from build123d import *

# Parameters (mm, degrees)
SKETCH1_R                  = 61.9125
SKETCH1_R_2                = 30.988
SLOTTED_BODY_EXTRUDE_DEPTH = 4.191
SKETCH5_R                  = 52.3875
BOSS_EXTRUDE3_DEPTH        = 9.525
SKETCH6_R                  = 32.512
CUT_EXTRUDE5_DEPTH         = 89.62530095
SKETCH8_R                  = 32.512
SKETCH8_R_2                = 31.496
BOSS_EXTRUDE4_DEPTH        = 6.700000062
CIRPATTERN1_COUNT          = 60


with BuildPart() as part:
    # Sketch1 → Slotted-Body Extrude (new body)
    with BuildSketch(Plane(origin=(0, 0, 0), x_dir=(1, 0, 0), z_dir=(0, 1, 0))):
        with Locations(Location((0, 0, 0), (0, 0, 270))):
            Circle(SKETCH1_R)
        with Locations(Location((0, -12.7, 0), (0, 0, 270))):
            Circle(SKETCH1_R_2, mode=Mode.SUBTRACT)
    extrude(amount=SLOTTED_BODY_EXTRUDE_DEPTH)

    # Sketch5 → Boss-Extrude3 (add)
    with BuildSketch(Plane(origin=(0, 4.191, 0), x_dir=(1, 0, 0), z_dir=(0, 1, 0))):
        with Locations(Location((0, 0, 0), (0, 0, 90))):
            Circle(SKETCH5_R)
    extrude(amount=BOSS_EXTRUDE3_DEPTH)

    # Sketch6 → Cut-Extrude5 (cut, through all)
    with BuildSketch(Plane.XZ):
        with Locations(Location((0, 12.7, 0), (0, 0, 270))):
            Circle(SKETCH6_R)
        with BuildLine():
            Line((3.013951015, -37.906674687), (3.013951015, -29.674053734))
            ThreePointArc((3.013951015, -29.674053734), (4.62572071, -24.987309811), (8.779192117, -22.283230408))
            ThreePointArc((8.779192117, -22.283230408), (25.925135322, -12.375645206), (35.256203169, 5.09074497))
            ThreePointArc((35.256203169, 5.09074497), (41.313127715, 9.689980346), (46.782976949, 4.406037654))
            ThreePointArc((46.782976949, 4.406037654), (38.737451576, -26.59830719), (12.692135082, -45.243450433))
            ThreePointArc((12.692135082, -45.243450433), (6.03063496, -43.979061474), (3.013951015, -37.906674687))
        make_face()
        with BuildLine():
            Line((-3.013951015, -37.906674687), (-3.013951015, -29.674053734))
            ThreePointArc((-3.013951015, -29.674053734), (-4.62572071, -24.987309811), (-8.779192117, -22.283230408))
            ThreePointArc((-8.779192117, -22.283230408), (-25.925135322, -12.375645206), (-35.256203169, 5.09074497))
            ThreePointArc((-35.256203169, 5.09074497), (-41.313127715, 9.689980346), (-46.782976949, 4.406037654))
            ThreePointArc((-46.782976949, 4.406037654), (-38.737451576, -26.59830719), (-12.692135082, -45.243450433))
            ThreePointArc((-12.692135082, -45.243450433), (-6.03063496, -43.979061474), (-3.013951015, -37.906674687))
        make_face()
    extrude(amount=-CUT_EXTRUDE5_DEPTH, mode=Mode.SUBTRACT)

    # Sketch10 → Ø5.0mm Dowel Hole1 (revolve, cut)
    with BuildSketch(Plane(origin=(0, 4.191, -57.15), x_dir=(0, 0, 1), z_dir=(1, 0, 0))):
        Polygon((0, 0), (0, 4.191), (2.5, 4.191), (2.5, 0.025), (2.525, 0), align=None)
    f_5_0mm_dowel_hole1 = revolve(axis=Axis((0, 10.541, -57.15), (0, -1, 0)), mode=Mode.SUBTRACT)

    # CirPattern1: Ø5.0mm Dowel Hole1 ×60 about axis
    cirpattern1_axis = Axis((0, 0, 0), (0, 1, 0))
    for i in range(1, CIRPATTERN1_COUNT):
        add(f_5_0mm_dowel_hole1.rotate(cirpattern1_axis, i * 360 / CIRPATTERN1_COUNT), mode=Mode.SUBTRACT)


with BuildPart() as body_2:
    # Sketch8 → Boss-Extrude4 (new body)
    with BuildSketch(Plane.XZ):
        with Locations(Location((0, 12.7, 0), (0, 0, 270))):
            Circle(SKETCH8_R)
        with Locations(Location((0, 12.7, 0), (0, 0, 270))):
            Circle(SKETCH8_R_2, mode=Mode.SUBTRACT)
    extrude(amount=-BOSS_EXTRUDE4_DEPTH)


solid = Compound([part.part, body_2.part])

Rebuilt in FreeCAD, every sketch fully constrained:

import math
import FreeCAD as App
import Part
import Sketcher
from FreeCAD import Vector
Q = App.Units.Quantity

doc = App.newDocument("Part")
body = doc.addObject("PartDesign::Body", "Body")

# Sketch on XZ plane
sketch1 = body.newObject("Sketcher::SketchObject", "Sketch")
sketch1.AttachmentSupport = (doc.getObject("XZ_Plane"), [""])
sketch1.MapMode = "FlatFace"
sketch1.addGeometry([
    Part.Circle(Vector(0, 0, 0), Vector(0, 0, 1), 62),
    Part.Circle(Vector(0, 13, 0), Vector(0, 0, 1), 31),
], False)
sketch1.addConstraint([
    Sketcher.Constraint("Coincident", 0, 3, -1, 1),
    Sketcher.Constraint("PointOnObject", 1, 3, -2),
    Sketcher.Constraint("Diameter", 1, Q("2.44 in")),
    Sketcher.Constraint("Diameter", 0, Q("4.875 in")),
    Sketcher.Constraint("DistanceY", -1, 1, 1, 3, Q("0.5 in")),
])
pad1 = body.newObject("PartDesign::Pad", "Pad")
pad1.Profile = sketch1
pad1.Length = Q("0.165 in")
pad1.Reversed = True

# Sketch on XZ plane
sketch2 = body.newObject("Sketcher::SketchObject", "Sketch001")
sketch2.AttachmentSupport = (doc.getObject("XZ_Plane"), [""])
sketch2.MapMode = "FlatFace"
sketch2.AttachmentOffset = App.Placement(Vector(0, 0, -0.165 * 25.4), App.Rotation())
sketch2.addGeometry(Part.Circle(Vector(0, 0, 0), Vector(0, 0, 1), 52), False)
sketch2.addConstraint([
    Sketcher.Constraint("Coincident", 0, 3, -1, 1),
    Sketcher.Constraint("Diameter", 0, Q("4.125 in")),
])
pad2 = body.newObject("PartDesign::Pad", "Pad001")
pad2.Profile = sketch2
pad2.Length = Q("0.375 in")
pad2.Reversed = True

# Sketch on XZ plane
sketch3 = body.newObject("Sketcher::SketchObject", "Sketch002")
sketch3.AttachmentSupport = (doc.getObject("XZ_Plane"), [""])
sketch3.MapMode = "FlatFace"
sketch3.addGeometry([
    Part.Circle(Vector(0, 13, 0), Vector(0, 0, 1), 33),  # 0
    Part.LineSegment(Vector(3, -30, 0), Vector(3, -38, 0)),  # 1
    Part.ArcOfCircle(Part.Circle(Vector(11, -38, 0), Vector(0, 0, 1), 8), math.radians(-180), math.radians(-74)),  # 2
    Part.ArcOfCircle(Part.Circle(Vector(0, 0, 0), Vector(0, 0, 1), 47), math.radians(-74), math.radians(5)),  # 3
    Part.ArcOfCircle(Part.Circle(Vector(41, 4, 0), Vector(0, 0, 1), 6), math.radians(5), math.radians(168)),  # 4
    Part.ArcOfCircle(Part.Circle(Vector(0, 13, 0), Vector(0, 0, 1), 36), math.radians(-76), math.radians(-12)),  # 5
    Part.ArcOfCircle(Part.Circle(Vector(11, -30, 0), Vector(0, 0, 1), 8), math.radians(104), math.radians(180)),  # 6
    Part.LineSegment(Vector(-3, -38, 0), Vector(-3, -30, 0)),  # 7
    Part.ArcOfCircle(Part.Circle(Vector(-11, -30, 0), Vector(0, 0, 1), 8), math.radians(0), math.radians(76)),  # 8
    Part.ArcOfCircle(Part.Circle(Vector(0, 13, 0), Vector(0, 0, 1), 36), math.radians(-168), math.radians(-104)),  # 9
    Part.ArcOfCircle(Part.Circle(Vector(-41, 4, 0), Vector(0, 0, 1), 6), math.radians(12), math.radians(175)),  # 10
    Part.ArcOfCircle(Part.Circle(Vector(0, 0, 0), Vector(0, 0, 1), 47), math.radians(175), math.radians(254)),  # 11
    Part.ArcOfCircle(Part.Circle(Vector(-11, -38, 0), Vector(0, 0, 1), 8), math.radians(-106), math.radians(0)),  # 12
], False)
sketch3.addConstraint([
    Sketcher.Constraint("Tangent", 1, 2, 2, 1),
    Sketcher.Constraint("Tangent", 2, 2, 3, 1),
    Sketcher.Constraint("Tangent", 3, 2, 4, 1),
    Sketcher.Constraint("Tangent", 4, 2, 5, 2),
    Sketcher.Constraint("Tangent", 5, 1, 6, 1),
    Sketcher.Constraint("Tangent", 6, 2, 1, 1),
    Sketcher.Constraint("Tangent", 7, 2, 8, 1),
    Sketcher.Constraint("Tangent", 8, 2, 9, 2),
    Sketcher.Constraint("Tangent", 9, 1, 10, 1),
    Sketcher.Constraint("Tangent", 10, 2, 11, 1),
    Sketcher.Constraint("Tangent", 11, 2, 12, 1),
    Sketcher.Constraint("Tangent", 12, 2, 7, 1),
    Sketcher.Constraint("Vertical", 1),
    Sketcher.Constraint("Vertical", 7),
    Sketcher.Constraint("Coincident", 3, 3, -1, 1),
    Sketcher.Constraint("Coincident", 11, 3, -1, 1),
    Sketcher.Constraint("Coincident", 5, 3, 0, 3),
    Sketcher.Constraint("Coincident", 9, 3, 0, 3),
    Sketcher.Constraint("Equal", 2, 6),
    Sketcher.Constraint("Equal", 6, 8),
    Sketcher.Constraint("Equal", 5, 9),
    Sketcher.Constraint("Equal", 4, 10),
    Sketcher.Constraint("Equal", 3, 11),
    Sketcher.Constraint("Equal", 8, 12),
    Sketcher.Constraint("Symmetric", 6, 3, 8, 3, -2),
    Sketcher.Constraint("Radius", 2, Q("0.3 in")),
    Sketcher.Constraint("Diameter", 0, Q("2.56 in")),
    Sketcher.Constraint("Radius", 3, Q("1.85 in")),
    Sketcher.Constraint("Radius", 4, Q("0.23 in")),
    Sketcher.Constraint("Radius", 5, Q("1.42 in")),
    Sketcher.Constraint("DistanceY", -1, 1, 0, 3, Q("0.5 in")),
    Sketcher.Constraint("DistanceY", 1, 2, 1, 1, 8.232621),
])
pocket1 = body.newObject("PartDesign::Pocket", "Pocket")
pocket1.Profile = sketch3
pocket1.Type = "ThroughAll"

# Sketch on YZ plane
sketch4 = body.newObject("Sketcher::SketchObject", "Sketch003")
sketch4.AttachmentSupport = (doc.getObject("YZ_Plane"), [""])
sketch4.MapMode = "FlatFace"
sketch4.addGeometry([
    Part.LineSegment(Vector(0, -57.15, 0), Vector(4.191, -57.15, 0)),  # 0
    Part.LineSegment(Vector(4.191, -57.15, 0), Vector(4.191, -54.625, 0)),  # 1
    Part.LineSegment(Vector(4.191, -54.625, 0), Vector(4.166, -54.65, 0)),  # 2
    Part.LineSegment(Vector(4.166, -54.65, 0), Vector(0, -54.65, 0)),  # 3
    Part.LineSegment(Vector(0, -54.65, 0), Vector(0, -57.15, 0)),  # 4
], False)
sketch4.addGeometry(Part.LineSegment(Vector(4.191, -57.15, 0), Vector(0, -57.15, 0)), True)  # axis
sketch4.addConstraint([
    Sketcher.Constraint("Coincident", 0, 2, 1, 1),
    Sketcher.Constraint("Coincident", 1, 2, 2, 1),
    Sketcher.Constraint("Coincident", 2, 2, 3, 1),
    Sketcher.Constraint("Coincident", 3, 2, 4, 1),
    Sketcher.Constraint("Coincident", 4, 2, 0, 1),
    Sketcher.Constraint("Horizontal", 0),
    Sketcher.Constraint("Vertical", 1),
    Sketcher.Constraint("Horizontal", 3),
    Sketcher.Constraint("Vertical", 4),
    Sketcher.Constraint("Horizontal", 5),
    Sketcher.Constraint("Coincident", 5, 1, 0, 2),
    Sketcher.Constraint("PointOnObject", 3, 2, -2),
    Sketcher.Constraint("PointOnObject", 5, 2, -2),
    Sketcher.Constraint("Angle", 2, Q("-135 deg")),
    Sketcher.Constraint("DistanceX", 0, 1, 0, 2, Q("0.165 in")),
    Sketcher.Constraint("DistanceY", 0, 2, -1, 1, Q("2.25 in")),
    Sketcher.Constraint("DistanceX", 3, 2, 3, 1, 4.166),
    Sketcher.Constraint("DistanceY", 1, 1, 1, 2, 2.525),
])
groove = body.newObject("PartDesign::Groove", "Groove")
groove.Profile = sketch4
groove.ReferenceAxis = (sketch4, ["Axis0"])
groove.Angle = 360
doc.recompute()

polarpattern = body.newObject("PartDesign::PolarPattern", "PolarPattern")
polarpattern.Originals = [groove]
polarpattern.Axis = (doc.getObject("Y_Axis"), [""])
polarpattern.Angle = 360
polarpattern.Occurrences = 60
body.Tip = polarpattern
body2 = doc.addObject("PartDesign::Body", "Body001")

# Sketch on XZ plane
sketch5 = body2.newObject("Sketcher::SketchObject", "Sketch004")
sketch5.AttachmentSupport = (doc.getObject("XZ_Plane001"), [""])
sketch5.MapMode = "FlatFace"
sketch5.addGeometry([
    Part.Circle(Vector(0, 13, 0), Vector(0, 0, 1), 33),
    Part.Circle(Vector(0, 13, 0), Vector(0, 0, 1), 31),
], False)
sketch5.addConstraint([
    Sketcher.Constraint("Coincident", 1, 3, 0, 3),
    Sketcher.Constraint("PointOnObject", 0, 3, -2),
    Sketcher.Constraint("Diameter", 0, Q("2.56 in")),
    Sketcher.Constraint("Diameter", 1, Q("2.48 in")),
    Sketcher.Constraint("DistanceY", -1, 1, 0, 3, Q("0.5 in")),
])
pad3 = body2.newObject("PartDesign::Pad", "Pad002")
pad3.Profile = sketch5
pad3.Length = 6.7
pad3.Reversed = True

doc.recompute()
